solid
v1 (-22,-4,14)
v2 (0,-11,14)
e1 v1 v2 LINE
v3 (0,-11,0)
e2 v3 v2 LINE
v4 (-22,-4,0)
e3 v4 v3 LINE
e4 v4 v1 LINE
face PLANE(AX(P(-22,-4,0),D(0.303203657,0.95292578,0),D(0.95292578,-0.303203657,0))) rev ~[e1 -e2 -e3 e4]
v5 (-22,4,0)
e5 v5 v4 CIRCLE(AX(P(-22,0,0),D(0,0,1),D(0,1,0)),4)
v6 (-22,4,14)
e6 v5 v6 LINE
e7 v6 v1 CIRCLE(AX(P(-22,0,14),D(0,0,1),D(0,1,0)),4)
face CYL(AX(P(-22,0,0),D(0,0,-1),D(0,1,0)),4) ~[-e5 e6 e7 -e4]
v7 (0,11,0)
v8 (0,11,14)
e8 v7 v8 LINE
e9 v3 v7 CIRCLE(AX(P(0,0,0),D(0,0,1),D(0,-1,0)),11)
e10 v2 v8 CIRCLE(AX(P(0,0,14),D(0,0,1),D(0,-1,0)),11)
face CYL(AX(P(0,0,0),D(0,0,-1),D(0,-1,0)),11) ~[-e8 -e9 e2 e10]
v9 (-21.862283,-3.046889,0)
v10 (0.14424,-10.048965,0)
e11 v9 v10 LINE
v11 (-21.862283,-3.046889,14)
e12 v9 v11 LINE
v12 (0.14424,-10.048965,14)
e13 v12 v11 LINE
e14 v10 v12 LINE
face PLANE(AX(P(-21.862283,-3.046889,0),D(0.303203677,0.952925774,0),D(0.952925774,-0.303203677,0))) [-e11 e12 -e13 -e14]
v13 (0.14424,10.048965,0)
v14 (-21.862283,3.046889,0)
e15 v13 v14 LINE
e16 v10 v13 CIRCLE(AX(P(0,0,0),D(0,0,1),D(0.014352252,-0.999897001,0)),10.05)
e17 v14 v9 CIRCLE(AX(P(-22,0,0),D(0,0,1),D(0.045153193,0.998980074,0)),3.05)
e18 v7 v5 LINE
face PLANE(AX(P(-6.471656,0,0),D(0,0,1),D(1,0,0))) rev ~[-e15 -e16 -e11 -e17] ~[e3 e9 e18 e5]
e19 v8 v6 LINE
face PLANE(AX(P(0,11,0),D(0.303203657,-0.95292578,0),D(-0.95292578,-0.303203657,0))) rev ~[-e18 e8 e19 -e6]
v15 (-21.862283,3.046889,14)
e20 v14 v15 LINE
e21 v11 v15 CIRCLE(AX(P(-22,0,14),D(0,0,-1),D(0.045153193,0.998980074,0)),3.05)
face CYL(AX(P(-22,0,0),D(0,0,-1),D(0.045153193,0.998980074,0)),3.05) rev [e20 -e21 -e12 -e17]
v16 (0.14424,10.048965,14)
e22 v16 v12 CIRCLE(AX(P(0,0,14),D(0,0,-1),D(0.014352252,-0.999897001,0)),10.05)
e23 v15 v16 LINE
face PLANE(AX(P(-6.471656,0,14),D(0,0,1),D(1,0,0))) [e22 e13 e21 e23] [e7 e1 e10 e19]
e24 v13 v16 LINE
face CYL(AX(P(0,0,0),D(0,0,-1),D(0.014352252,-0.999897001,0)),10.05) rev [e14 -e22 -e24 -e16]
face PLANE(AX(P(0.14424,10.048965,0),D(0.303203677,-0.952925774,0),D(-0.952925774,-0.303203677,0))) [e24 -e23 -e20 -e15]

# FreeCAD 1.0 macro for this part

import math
import FreeCAD as App
import Part
import Sketcher

V = App.Vector
Q = App.Units.Quantity

doc = App.newDocument("Part")
body = doc.addObject("PartDesign::Body", "Body")

sketch1 = body.newObject("Sketcher::SketchObject", "Sketch")
sketch1.AttachmentSupport = (doc.getObject("XY_Plane"), [""])
sketch1.MapMode = "FlatFace"
sketch1.addGeometry([
    Part.LineSegment(V(0, 11, 0), V(-22, 4, 0)),
    Part.ArcOfCircle(Part.Circle(V(-22, 0, 0), V(0, 0, 1), 4), math.radians(90), math.radians(270)),
    Part.LineSegment(V(-22, -4, 0), V(0, -11, 0)),
    Part.ArcOfCircle(Part.Circle(V(0, 0, 0), V(0, 0, 1), 11), math.radians(-90), math.radians(90)),
], False)
sketch1.addConstraint([
    Sketcher.Constraint("Coincident", 0, 2, 1, 1),
    Sketcher.Constraint("Coincident", 1, 2, 2, 1),
    Sketcher.Constraint("Coincident", 2, 2, 3, 1),
    Sketcher.Constraint("Coincident", 3, 2, 0, 1),
    Sketcher.Constraint("Coincident", 3, 3, -1, 1),
    Sketcher.Constraint("Symmetric", 0, 2, 1, 2, -1),
    Sketcher.Constraint("PointOnObject", 2, 2, -2),
    Sketcher.Constraint("PointOnObject", 3, 2, -2),
    Sketcher.Constraint("Vertical", 1, 3, 0, 2),
    Sketcher.Constraint("Radius", 1, Q("4 mm")),
    Sketcher.Constraint("Radius", 3, Q("11 mm")),
    Sketcher.Constraint("DistanceX", 1, 3, -1, 1, Q("22 mm")),
])
pad1 = body.newObject("PartDesign::Pad", "Pad")
pad1.Profile = sketch1
pad1.Length = 14

sketch2 = body.newObject("Sketcher::SketchObject", "Sketch001")
sketch2.AttachmentSupport = (doc.getObject("XY_Plane"), [""])
sketch2.MapMode = "FlatFace"
sketch2.addGeometry([
    Part.ArcOfCircle(Part.Circle(V(-22, 0, 0), V(0, 0, 1), 3), math.radians(87), math.radians(273)),
    Part.LineSegment(V(-21.9, -3, 0), V(0.1, -10, 0)),
    Part.ArcOfCircle(Part.Circle(V(0, 0, 0), V(0, 0, 1), 10.1), math.radians(-89), math.radians(89)),
    Part.LineSegment(V(0.1, 10, 0), V(-21.9, 3, 0)),
], False)
sketch2.addConstraint([
    Sketcher.Constraint("Coincident", 0, 2, 1, 1),
    Sketcher.Constraint("Coincident", 1, 2, 2, 1),
    Sketcher.Constraint("Coincident", 2, 2, 3, 1),
    Sketcher.Constraint("Coincident", 3, 2, 0, 1),
    Sketcher.Constraint("Coincident", 2, 3, -1, 1),
    Sketcher.Constraint("Symmetric", 0, 2, 3, 2, -1),
    Sketcher.Constraint("Vertical", 1, 2, 2, 2),
    Sketcher.Constraint("Radius", 0, Q("3.05 mm")),
    Sketcher.Constraint("Radius", 2, Q("10.05 mm")),
    Sketcher.Constraint("DistanceX", 0, 3, -1, 1, Q("22 mm")),
    Sketcher.Constraint("Distance", 1, Q("23.093638 mm")),
    Sketcher.Constraint("DistanceY", 0, 2, -1, 1, Q("3.046889 mm")),
])
pocket1 = body.newObject("PartDesign::Pocket", "Pocket")
pocket1.Profile = sketch2
pocket1.Type = "ThroughAll"
pocket1.Reversed = True

doc.recompute()
